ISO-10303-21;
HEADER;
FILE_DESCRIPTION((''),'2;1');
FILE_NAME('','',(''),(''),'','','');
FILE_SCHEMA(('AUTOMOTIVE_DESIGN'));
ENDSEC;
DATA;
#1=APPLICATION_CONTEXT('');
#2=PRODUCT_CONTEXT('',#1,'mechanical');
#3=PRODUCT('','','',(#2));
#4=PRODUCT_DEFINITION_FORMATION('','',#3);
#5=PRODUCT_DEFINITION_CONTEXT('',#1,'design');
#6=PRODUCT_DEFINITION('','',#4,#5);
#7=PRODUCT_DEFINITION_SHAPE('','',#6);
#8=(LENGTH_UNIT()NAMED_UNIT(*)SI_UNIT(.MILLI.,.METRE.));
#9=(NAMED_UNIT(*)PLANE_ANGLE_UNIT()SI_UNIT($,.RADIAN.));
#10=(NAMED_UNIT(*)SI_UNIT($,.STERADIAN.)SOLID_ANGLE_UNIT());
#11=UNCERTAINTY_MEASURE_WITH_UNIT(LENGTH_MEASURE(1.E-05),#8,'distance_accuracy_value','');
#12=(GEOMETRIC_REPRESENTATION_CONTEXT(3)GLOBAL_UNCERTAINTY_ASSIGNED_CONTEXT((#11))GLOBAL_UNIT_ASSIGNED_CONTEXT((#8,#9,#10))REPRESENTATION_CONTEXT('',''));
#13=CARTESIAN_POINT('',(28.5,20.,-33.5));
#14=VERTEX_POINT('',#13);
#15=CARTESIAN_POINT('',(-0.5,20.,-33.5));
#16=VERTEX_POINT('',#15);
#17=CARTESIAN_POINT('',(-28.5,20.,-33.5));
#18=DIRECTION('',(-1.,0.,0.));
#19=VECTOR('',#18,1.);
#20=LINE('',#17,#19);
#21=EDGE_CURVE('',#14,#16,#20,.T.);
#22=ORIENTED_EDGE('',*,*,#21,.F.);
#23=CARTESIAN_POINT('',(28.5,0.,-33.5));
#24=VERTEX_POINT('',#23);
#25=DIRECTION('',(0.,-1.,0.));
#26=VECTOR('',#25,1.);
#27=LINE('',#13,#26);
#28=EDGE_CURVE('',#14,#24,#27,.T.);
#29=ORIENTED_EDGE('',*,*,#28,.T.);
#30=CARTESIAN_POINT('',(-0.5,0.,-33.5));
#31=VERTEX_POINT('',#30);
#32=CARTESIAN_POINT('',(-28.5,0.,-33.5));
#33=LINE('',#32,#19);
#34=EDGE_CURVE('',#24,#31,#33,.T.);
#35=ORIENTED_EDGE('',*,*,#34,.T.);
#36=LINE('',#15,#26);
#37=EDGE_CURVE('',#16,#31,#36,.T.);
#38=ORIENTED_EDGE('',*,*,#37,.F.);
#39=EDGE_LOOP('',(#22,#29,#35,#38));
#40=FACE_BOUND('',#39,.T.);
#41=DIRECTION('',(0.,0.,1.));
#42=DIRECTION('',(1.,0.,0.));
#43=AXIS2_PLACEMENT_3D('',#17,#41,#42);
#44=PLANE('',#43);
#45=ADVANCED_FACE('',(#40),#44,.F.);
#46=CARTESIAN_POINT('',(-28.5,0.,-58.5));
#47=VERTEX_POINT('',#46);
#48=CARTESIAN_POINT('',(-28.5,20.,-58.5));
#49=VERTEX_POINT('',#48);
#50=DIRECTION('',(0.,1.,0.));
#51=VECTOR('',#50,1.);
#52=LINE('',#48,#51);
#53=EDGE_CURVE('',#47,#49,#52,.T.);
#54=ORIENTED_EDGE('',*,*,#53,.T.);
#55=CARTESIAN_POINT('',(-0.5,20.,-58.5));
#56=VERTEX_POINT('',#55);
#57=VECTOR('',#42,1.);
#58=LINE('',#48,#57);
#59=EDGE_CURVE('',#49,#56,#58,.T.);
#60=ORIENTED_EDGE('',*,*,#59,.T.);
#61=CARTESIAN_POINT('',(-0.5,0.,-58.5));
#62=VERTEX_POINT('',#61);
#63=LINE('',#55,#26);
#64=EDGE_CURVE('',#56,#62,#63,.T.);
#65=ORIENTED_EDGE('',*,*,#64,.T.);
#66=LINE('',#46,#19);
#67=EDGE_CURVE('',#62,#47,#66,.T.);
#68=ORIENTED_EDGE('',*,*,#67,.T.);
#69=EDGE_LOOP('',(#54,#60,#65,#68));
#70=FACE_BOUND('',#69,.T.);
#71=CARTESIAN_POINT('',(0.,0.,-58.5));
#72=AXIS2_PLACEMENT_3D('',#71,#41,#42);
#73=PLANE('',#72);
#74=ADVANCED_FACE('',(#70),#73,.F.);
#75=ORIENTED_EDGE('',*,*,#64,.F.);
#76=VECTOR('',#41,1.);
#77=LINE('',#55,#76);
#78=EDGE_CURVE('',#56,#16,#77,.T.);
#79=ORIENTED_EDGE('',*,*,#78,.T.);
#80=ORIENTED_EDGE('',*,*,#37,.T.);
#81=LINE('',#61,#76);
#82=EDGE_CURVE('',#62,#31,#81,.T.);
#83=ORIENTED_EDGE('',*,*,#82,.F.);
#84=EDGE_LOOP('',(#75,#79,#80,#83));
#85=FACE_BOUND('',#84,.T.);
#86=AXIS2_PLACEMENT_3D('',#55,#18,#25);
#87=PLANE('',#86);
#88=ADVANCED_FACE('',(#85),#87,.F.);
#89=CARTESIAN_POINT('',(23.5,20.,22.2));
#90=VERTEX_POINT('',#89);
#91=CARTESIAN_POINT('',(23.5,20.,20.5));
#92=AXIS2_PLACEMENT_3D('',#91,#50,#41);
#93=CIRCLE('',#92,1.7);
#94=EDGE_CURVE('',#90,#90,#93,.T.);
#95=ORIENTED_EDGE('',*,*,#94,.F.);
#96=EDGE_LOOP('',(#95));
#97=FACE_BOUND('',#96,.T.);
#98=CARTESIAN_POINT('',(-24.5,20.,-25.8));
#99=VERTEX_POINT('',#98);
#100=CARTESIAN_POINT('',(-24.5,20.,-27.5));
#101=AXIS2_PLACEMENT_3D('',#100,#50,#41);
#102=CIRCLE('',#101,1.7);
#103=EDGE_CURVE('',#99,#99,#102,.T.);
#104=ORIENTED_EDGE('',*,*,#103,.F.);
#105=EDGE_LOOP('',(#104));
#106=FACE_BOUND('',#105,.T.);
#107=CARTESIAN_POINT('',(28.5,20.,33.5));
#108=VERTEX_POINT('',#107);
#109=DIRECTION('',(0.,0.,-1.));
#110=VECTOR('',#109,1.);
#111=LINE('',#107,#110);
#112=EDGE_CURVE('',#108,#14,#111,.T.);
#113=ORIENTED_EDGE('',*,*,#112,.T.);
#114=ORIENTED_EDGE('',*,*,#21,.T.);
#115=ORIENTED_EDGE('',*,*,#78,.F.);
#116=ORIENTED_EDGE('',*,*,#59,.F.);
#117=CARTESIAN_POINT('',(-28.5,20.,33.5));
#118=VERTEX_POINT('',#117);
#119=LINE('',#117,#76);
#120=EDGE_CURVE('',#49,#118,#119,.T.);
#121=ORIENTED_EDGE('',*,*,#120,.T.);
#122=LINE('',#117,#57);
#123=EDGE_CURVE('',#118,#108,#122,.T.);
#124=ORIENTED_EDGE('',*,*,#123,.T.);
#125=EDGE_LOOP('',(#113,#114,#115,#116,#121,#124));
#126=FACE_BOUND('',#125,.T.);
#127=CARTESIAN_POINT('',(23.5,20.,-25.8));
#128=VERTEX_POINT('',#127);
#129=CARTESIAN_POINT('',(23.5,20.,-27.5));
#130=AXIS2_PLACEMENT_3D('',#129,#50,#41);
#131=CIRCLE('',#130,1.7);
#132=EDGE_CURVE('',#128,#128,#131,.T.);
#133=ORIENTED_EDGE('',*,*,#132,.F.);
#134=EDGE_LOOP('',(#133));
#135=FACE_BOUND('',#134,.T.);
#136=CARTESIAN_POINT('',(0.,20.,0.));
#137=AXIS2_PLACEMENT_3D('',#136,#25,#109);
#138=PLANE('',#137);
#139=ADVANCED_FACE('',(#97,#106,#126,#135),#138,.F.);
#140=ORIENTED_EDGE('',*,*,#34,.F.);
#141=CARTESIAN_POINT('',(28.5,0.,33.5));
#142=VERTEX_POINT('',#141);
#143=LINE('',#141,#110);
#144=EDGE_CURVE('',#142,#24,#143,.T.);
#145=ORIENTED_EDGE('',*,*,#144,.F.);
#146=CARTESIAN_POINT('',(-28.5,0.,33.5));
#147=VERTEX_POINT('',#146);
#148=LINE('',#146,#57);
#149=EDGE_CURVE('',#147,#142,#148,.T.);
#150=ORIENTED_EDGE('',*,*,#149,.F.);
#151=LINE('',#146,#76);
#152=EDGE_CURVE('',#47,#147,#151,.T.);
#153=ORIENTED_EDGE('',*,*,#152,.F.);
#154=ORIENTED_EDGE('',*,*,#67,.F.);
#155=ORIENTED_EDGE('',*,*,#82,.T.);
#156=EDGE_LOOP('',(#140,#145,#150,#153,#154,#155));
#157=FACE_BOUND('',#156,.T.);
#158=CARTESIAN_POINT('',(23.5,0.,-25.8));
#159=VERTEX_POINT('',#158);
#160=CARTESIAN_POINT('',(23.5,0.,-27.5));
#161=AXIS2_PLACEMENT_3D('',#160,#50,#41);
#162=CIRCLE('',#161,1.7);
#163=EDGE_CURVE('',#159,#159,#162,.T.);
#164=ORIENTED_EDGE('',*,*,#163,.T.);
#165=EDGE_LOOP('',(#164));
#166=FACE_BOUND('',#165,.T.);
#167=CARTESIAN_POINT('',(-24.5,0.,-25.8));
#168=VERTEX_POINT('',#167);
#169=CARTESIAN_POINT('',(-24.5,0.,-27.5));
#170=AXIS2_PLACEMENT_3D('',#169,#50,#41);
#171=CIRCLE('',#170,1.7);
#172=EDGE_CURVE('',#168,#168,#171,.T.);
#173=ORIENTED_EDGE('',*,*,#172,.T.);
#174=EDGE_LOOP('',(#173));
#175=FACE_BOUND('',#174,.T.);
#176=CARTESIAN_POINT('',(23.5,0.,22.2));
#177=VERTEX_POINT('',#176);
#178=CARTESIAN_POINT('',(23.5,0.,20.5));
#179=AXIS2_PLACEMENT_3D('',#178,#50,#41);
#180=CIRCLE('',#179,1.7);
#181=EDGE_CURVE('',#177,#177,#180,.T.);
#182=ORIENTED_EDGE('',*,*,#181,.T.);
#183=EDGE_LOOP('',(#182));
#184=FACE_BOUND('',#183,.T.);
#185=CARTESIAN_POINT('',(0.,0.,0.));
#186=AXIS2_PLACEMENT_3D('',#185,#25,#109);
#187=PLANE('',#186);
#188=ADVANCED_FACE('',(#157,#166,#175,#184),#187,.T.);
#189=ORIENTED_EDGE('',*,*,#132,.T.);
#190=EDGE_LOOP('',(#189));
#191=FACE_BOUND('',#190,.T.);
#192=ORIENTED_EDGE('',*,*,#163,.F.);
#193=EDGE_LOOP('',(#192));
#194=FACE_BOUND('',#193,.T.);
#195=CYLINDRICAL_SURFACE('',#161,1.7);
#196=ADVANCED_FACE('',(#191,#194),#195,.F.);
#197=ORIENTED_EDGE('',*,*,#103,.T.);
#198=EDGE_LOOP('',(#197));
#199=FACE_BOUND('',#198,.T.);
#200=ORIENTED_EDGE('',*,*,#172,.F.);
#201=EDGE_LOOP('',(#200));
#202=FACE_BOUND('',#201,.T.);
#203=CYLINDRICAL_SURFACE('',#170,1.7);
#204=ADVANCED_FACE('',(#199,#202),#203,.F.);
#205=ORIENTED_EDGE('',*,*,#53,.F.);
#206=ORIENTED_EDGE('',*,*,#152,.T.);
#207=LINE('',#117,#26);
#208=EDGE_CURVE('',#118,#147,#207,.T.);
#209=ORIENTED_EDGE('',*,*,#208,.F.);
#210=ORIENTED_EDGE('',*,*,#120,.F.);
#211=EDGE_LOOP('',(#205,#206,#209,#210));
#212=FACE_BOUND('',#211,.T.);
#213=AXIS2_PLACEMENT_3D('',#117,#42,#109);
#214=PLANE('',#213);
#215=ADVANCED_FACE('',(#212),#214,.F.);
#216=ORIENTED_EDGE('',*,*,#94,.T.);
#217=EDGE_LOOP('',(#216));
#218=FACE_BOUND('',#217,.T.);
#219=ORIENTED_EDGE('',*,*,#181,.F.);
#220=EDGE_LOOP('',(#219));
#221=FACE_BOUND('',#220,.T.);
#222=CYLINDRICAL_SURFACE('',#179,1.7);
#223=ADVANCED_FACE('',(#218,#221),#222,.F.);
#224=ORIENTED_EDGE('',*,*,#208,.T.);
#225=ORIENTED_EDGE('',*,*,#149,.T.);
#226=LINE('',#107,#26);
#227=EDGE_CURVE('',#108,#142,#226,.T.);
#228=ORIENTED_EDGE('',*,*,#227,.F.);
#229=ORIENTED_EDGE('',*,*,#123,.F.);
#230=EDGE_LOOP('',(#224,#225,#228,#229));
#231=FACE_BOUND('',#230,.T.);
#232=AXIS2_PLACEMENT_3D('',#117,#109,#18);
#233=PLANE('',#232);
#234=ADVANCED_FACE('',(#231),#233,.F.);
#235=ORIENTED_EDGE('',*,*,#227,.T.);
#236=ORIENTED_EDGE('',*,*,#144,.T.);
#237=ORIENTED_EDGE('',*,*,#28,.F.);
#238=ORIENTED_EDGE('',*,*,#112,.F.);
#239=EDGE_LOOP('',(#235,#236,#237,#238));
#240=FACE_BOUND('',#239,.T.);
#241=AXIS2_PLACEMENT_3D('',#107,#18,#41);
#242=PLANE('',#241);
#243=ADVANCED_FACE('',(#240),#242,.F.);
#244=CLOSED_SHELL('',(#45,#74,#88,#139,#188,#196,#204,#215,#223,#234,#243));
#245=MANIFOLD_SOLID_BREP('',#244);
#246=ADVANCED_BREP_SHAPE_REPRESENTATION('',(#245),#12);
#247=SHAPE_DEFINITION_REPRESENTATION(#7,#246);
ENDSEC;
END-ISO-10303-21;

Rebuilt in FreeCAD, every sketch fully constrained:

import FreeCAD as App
import Part
import Sketcher
from FreeCAD import Vector
Q = App.Units.Quantity


def add_polygon(sketch, points):
    """Adds a closed chain of lines whose ends are joined by coincident constraints."""
    first, n = sketch.GeometryCount, len(points)
    for a, b in zip(points, points[1:] + points[:1]):
        sketch.addGeometry(Part.LineSegment(App.Vector(*a, 0), App.Vector(*b, 0)), False)
    for i in range(n):
        sketch.addConstraint(Sketcher.Constraint("Coincident", first + i, 2, first + (i + 1) % n, 1))

doc = App.newDocument("Part")
params = doc.addObject("Spreadsheet::Sheet", "Params")
for row, (alias, value) in enumerate([
    ("sketch1_width", "57 mm"),
    ("sketch1_height", "67 mm"),
    ("pad1_length", "20 mm"),
    ("sketch2_diameter", "3.4 mm"),
    ("pocket1_length", "20 mm"),
    ("sketch3_width", "28 mm"),
    ("sketch3_height", "20 mm"),
    ("pad2_length", "25 mm"),
], start=1):
    params.set(f"A{row}", alias)
    params.set(f"B{row}", "=" + value)
    params.setAlias(f"B{row}", alias)

body = doc.addObject("PartDesign::Body", "Body")

sketch1 = body.newObject("Sketcher::SketchObject", "Sketch")
sketch1.AttachmentSupport = (doc.getObject("XZ_Plane"), [""])
sketch1.MapMode = "FlatFace"
add_polygon(sketch1, [(-28.5, -33.5), (-28.5, 33.5), (28.5, 33.5), (28.5, -33.5)])
sketch1.addConstraint(Sketcher.Constraint("Vertical", 0))
sketch1.addConstraint(Sketcher.Constraint("Horizontal", 1))
sketch1.addConstraint(Sketcher.Constraint("Vertical", 2))
sketch1.addConstraint(Sketcher.Constraint("Horizontal", 3))
sketch1.addConstraint(Sketcher.Constraint("Symmetric", 0, 2, 2, 2, -1, 1))
sketch1.addConstraint(Sketcher.Constraint("DistanceX", 1, 1, 1, 2, Q("57 mm")))
sketch1.addConstraint(Sketcher.Constraint("DistanceY", 0, 1, 0, 2, Q("67 mm")))
sketch1.setExpression("Constraints[9]", "Params.sketch1_width")
sketch1.setExpression("Constraints[10]", "Params.sketch1_height")
pad1 = body.newObject("PartDesign::Pad", "Pad")
pad1.Profile = sketch1
pad1.setExpression("Length", "Params.pad1_length")
pad1.Reversed = True

sketch2 = body.newObject("Sketcher::SketchObject", "Sketch001")
sketch2.AttachmentSupport = (doc.getObject("XZ_Plane"), [""])
sketch2.MapMode = "FlatFace"
sketch2.AttachmentOffset = App.Placement(Vector(0, 0, -20), App.Rotation())
sketch2.addGeometry(Part.Circle(Vector(-24.5, -27.5, 0), Vector(0, 0, 1), 1.7), False)
sketch2.addGeometry(Part.Circle(Vector(23.5, -27.5, 0), Vector(0, 0, 1), 1.7), False)
sketch2.addGeometry(Part.Circle(Vector(23.5, 20.5, 0), Vector(0, 0, 1), 1.7), False)
sketch2.addConstraint(Sketcher.Constraint("Equal", 0, 1))
sketch2.addConstraint(Sketcher.Constraint("Equal", 1, 2))
sketch2.addConstraint(Sketcher.Constraint("Horizontal", 0, 3, 1, 3))
sketch2.addConstraint(Sketcher.Constraint("Vertical", 1, 3, 2, 3))
sketch2.addConstraint(Sketcher.Constraint("Diameter", 0, Q("3.4 mm")))
sketch2.addConstraint(Sketcher.Constraint("DistanceX", 0, 3, 1, 3, Q("48 mm")))
sketch2.addConstraint(Sketcher.Constraint("DistanceY", 1, 3, 2, 3, Q("48 mm")))
sketch2.addConstraint(Sketcher.Constraint("DistanceX", 0, 3, -1, 1, Q("24.5 mm")))
sketch2.addConstraint(Sketcher.Constraint("DistanceY", 0, 3, -1, 1, Q("27.5 mm")))
sketch2.setExpression("Constraints[4]", "Params.sketch2_diameter")
pocket1 = body.newObject("PartDesign::Pocket", "Pocket")
pocket1.Profile = sketch2
pocket1.setExpression("Length", "Params.pocket1_length")
pocket1.Reversed = True

sketch3 = body.newObject("Sketcher::SketchObject", "Sketch002")
sketch3.AttachmentSupport = (doc.getObject("XY_Plane"), [""])
sketch3.MapMode = "FlatFace"
sketch3.AttachmentOffset = App.Placement(Vector(0, 0, -33.5), App.Rotation())
add_polygon(sketch3, [(-0.5, 20), (-0.5, 0), (-28.5, 0), (-28.5, 20)])
sketch3.addConstraint(Sketcher.Constraint("Vertical", 0))
sketch3.addConstraint(Sketcher.Constraint("Horizontal", 1))
sketch3.addConstraint(Sketcher.Constraint("Vertical", 2))
sketch3.addConstraint(Sketcher.Constraint("Horizontal", 3))
sketch3.addConstraint(Sketcher.Constraint("PointOnObject", 0, 2, -1))
sketch3.addConstraint(Sketcher.Constraint("DistanceX", 1, 2, 1, 1, Q("28 mm")))
sketch3.addConstraint(Sketcher.Constraint("DistanceY", 0, 2, 0, 1, Q("20 mm")))
sketch3.addConstraint(Sketcher.Constraint("DistanceX", 0, 2, -1, 1, Q("0.5 mm")))
sketch3.setExpression("Constraints[9]", "Params.sketch3_width")
sketch3.setExpression("Constraints[10]", "Params.sketch3_height")
pad2 = body.newObject("PartDesign::Pad", "Pad001")
pad2.Profile = sketch3
pad2.setExpression("Length", "Params.pad2_length")
pad2.Reversed = True

doc.recompute()
